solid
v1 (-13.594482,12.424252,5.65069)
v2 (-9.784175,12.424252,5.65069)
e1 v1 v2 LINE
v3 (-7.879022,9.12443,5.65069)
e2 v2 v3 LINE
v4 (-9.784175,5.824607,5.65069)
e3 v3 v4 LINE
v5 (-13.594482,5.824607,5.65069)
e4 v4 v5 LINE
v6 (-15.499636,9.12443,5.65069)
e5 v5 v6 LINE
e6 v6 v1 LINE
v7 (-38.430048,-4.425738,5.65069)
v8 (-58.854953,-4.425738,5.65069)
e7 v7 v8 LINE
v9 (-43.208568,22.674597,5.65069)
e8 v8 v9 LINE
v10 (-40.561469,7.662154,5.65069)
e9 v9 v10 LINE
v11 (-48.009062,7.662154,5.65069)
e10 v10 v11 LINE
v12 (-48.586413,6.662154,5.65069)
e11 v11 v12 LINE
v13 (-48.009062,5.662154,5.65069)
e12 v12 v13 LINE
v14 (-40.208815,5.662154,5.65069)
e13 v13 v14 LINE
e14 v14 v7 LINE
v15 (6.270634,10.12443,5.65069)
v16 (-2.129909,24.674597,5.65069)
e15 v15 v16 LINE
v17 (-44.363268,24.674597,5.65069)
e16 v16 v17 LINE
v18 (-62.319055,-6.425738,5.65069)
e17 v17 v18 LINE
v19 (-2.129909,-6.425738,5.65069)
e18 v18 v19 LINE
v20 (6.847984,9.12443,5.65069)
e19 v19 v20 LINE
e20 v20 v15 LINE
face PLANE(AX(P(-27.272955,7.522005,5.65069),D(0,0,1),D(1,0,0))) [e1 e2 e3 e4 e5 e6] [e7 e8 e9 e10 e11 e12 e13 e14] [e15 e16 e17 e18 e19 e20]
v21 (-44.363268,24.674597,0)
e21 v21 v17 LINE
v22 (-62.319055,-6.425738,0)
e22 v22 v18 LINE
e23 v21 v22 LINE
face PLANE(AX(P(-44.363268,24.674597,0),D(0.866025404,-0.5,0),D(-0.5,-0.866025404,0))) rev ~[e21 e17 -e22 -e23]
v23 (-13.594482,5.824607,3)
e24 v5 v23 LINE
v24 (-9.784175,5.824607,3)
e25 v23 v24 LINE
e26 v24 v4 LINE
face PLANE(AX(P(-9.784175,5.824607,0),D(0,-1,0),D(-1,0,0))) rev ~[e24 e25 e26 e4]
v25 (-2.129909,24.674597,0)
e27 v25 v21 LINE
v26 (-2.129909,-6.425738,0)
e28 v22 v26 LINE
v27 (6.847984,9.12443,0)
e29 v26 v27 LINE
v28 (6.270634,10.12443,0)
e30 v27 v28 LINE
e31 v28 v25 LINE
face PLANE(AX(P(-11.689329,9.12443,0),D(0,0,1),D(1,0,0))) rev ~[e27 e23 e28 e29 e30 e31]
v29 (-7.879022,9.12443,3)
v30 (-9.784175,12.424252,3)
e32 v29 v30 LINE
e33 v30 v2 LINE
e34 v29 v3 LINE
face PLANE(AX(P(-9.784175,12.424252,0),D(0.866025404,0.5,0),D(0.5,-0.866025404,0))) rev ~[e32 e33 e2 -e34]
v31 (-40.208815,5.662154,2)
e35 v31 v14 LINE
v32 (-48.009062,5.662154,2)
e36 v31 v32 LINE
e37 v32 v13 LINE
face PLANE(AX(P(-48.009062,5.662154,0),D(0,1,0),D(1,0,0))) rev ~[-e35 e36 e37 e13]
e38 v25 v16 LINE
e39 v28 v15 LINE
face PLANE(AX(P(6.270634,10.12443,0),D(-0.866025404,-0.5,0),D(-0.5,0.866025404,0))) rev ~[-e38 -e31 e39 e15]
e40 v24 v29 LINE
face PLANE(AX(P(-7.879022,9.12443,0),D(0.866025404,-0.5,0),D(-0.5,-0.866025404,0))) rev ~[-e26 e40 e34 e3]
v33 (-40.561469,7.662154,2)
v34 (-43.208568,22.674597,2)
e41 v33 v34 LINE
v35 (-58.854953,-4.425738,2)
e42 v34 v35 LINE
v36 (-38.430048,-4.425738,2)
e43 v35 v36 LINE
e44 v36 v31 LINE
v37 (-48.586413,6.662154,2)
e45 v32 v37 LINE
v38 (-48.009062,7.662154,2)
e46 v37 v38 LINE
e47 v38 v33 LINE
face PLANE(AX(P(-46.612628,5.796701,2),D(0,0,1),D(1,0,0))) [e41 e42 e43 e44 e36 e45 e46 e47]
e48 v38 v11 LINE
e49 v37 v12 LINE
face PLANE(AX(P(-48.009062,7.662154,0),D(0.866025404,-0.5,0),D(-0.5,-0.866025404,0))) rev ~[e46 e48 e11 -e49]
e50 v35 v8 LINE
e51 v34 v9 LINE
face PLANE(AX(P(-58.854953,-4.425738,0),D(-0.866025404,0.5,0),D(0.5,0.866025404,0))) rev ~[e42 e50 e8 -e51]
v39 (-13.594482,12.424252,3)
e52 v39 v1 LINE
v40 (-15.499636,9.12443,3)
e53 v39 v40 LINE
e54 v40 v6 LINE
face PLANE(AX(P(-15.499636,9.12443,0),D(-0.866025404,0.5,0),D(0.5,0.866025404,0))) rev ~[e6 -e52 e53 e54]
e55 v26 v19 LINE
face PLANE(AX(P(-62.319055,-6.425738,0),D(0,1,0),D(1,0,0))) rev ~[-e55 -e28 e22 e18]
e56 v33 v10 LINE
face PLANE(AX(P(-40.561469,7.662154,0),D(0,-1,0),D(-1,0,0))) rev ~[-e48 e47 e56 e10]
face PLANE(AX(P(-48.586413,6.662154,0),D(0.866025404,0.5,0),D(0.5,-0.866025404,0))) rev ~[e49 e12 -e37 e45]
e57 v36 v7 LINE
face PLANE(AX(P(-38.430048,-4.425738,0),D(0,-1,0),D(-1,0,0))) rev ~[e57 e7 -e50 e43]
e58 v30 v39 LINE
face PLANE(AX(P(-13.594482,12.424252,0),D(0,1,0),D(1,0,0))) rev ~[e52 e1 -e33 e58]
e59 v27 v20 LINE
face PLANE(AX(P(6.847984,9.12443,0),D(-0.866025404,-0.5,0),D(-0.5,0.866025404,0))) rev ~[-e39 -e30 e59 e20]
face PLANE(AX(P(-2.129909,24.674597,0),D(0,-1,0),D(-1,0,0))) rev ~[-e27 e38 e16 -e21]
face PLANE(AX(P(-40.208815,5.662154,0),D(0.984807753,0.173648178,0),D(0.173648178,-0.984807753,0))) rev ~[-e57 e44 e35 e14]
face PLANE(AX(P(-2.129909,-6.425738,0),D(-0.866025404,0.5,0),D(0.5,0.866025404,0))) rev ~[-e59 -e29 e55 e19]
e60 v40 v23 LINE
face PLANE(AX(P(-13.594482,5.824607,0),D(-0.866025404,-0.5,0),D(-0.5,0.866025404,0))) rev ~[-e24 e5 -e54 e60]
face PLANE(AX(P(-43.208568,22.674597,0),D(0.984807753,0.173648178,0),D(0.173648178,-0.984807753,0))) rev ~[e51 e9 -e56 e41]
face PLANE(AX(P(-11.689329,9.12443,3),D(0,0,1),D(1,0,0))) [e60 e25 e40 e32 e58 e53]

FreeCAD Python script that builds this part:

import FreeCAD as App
import Part
import Sketcher
from FreeCAD import Vector
Q = App.Units.Quantity

doc = App.newDocument("Part")
params = doc.addObject("Spreadsheet::Sheet", "Params")
for row, (alias, value) in enumerate([
    ("pad1_length", "2 mm"),
    ("pad2_length", "2 mm"),
    ("pad3_length", "5.65069 mm"),
    ("pad4_length", "3 mm"),
], start=1):
    params.set(f"A{row}", alias)
    params.set(f"B{row}", "=" + value)
    params.setAlias(f"B{row}", alias)

body = doc.addObject("PartDesign::Body", "Body")

# Sketch on XY plane
sketch1 = body.newObject("Sketcher::SketchObject", "Sketch")
sketch1.AttachmentSupport = (doc.getObject("XY_Plane"), [""])
sketch1.MapMode = "FlatFace"
sketch1.addGeometry(Part.LineSegment(Vector(-43.2, 22.7, 0), Vector(-58.9, -4.4, 0)), False)
sketch1.addGeometry(Part.LineSegment(Vector(-58.9, -4.4, 0), Vector(-38.4, -4.4, 0)), False)
sketch1.addGeometry(Part.LineSegment(Vector(-38.4, -4.4, 0), Vector(-40.2, 5.7, 0)), False)
sketch1.addGeometry(Part.LineSegment(Vector(-40.2, 5.7, 0), Vector(-48, 5.7, 0)), False)
sketch1.addGeometry(Part.LineSegment(Vector(-48, 5.7, 0), Vector(-48.6, 6.7, 0)), False)
sketch1.addGeometry(Part.LineSegment(Vector(-48.6, 6.7, 0), Vector(-48, 7.7, 0)), False)
sketch1.addGeometry(Part.LineSegment(Vector(-48, 7.7, 0), Vector(-40.6, 7.7, 0)), False)
sketch1.addGeometry(Part.LineSegment(Vector(-40.6, 7.7, 0), Vector(-43.2, 22.7, 0)), False)
sketch1.addConstraint(Sketcher.Constraint("Coincident", 0, 2, 1, 1))
sketch1.addConstraint(Sketcher.Constraint("Coincident", 1, 2, 2, 1))
sketch1.addConstraint(Sketcher.Constraint("Coincident", 2, 2, 3, 1))
sketch1.addConstraint(Sketcher.Constraint("Coincident", 3, 2, 4, 1))
sketch1.addConstraint(Sketcher.Constraint("Coincident", 4, 2, 5, 1))
sketch1.addConstraint(Sketcher.Constraint("Coincident", 5, 2, 6, 1))
sketch1.addConstraint(Sketcher.Constraint("Coincident", 6, 2, 7, 1))
sketch1.addConstraint(Sketcher.Constraint("Coincident", 7, 2, 0, 1))
sketch1.addConstraint(Sketcher.Constraint("Horizontal", 1))
sketch1.addConstraint(Sketcher.Constraint("Horizontal", 3))
sketch1.addConstraint(Sketcher.Constraint("Horizontal", 6))
sketch1.addConstraint(Sketcher.Constraint("Parallel", 0, 5))
sketch1.addConstraint(Sketcher.Constraint("Parallel", 2, 7))
sketch1.addConstraint(Sketcher.Constraint("Vertical", 3, 2, 5, 2))
sketch1.addConstraint(Sketcher.Constraint("Equal", 4, 5))
sketch1.addConstraint(Sketcher.Constraint("Angle", 0, Q("-120 deg")))
sketch1.addConstraint(Sketcher.Constraint("Angle", 2, Q("100 deg")))
sketch1.addConstraint(Sketcher.Constraint("DistanceY", 3, 2, 4, 2, 1.0))
sketch1.addConstraint(Sketcher.Constraint("DistanceX", 7, 2, 6, 2, 2.647099))
sketch1.addConstraint(Sketcher.Constraint("Distance", 0, 31.292771))
sketch1.addConstraint(Sketcher.Constraint("DistanceX", 1, 1, 1, 2, 20.424906))
sketch1.addConstraint(Sketcher.Constraint("DistanceX", 3, 2, 3, 1, 7.800247))
sketch1.addConstraint(Sketcher.Constraint("DistanceX", 6, 2, -1, 1, 40.561469))
sketch1.addConstraint(Sketcher.Constraint("DistanceY", 0, 2, -1, 1, 4.425738))
pad1 = body.newObject("PartDesign::Pad", "Pad")
pad1.Profile = sketch1
pad1.setExpression("Length", "Params.pad1_length")
body2 = doc.addObject("PartDesign::Body", "Body001")

# Sketch on XY plane
sketch2 = body2.newObject("Sketcher::SketchObject", "Sketch001")
sketch2.AttachmentSupport = (doc.getObject("XY_Plane001"), [""])
sketch2.MapMode = "FlatFace"
sketch2.addGeometry(Part.LineSegment(Vector(-41.2, 22.7, 0), Vector(-36.4, -4.4, 0)), False)
sketch2.addGeometry(Part.LineSegment(Vector(-36.4, -4.4, 0), Vector(-23.2, -4.4, 0)), False)
sketch2.addGeometry(Part.LineSegment(Vector(-23.2, -4.4, 0), Vector(-25.5, 8.9, 0)), False)
sketch2.addGeometry(Part.LineSegment(Vector(-25.5, 8.9, 0), Vector(-33.5, 8.9, 0)), False)
sketch2.addGeometry(Part.LineSegment(Vector(-33.5, 8.9, 0), Vector(-34.1, 9.9, 0)), False)
sketch2.addGeometry(Part.LineSegment(Vector(-34.1, 9.9, 0), Vector(-33.5, 10.9, 0)), False)
sketch2.addGeometry(Part.LineSegment(Vector(-33.5, 10.9, 0), Vector(-22.8, 10.9, 0)), False)
sketch2.addGeometry(Part.LineSegment(Vector(-22.8, 10.9, 0), Vector(-20.1, -4.4, 0)), False)
sketch2.addGeometry(Part.LineSegment(Vector(-20.1, -4.4, 0), Vector(-3.3, -4.4, 0)), False)
sketch2.addGeometry(Part.LineSegment(Vector(-3.3, -4.4, 0), Vector(4.5, 9.1, 0)), False)
sketch2.addGeometry(Part.LineSegment(Vector(4.5, 9.1, 0), Vector(-3.3, 22.7, 0)), False)
sketch2.addGeometry(Part.LineSegment(Vector(-3.3, 22.7, 0), Vector(-20.1, 22.7, 0)), False)
sketch2.addGeometry(Part.LineSegment(Vector(-20.1, 22.7, 0), Vector(-24.5, 15.1, 0)), False)
sketch2.addGeometry(Part.LineSegment(Vector(-24.5, 15.1, 0), Vector(-25.6, 14.8, 0)), False)
sketch2.addGeometry(Part.LineSegment(Vector(-25.6, 14.8, 0), Vector(-33.3, 22.7, 0)), False)
sketch2.addGeometry(Part.LineSegment(Vector(-33.3, 22.7, 0), Vector(-41.2, 22.7, 0)), False)
sketch2.addGeometry(Part.LineSegment(Vector(-13.6, 5.8, 0), Vector(-15.5, 9.1, 0)), False)
sketch2.addGeometry(Part.LineSegment(Vector(-15.5, 9.1, 0), Vector(-13.6, 12.4, 0)), False)
sketch2.addGeometry(Part.LineSegment(Vector(-13.6, 12.4, 0), Vector(-9.8, 12.4, 0)), False)
sketch2.addGeometry(Part.LineSegment(Vector(-9.8, 12.4, 0), Vector(-7.9, 9.1, 0)), False)
sketch2.addGeometry(Part.LineSegment(Vector(-7.9, 9.1, 0), Vector(-9.8, 5.8, 0)), False)
sketch2.addGeometry(Part.LineSegment(Vector(-9.8, 5.8, 0), Vector(-13.6, 5.8, 0)), False)
sketch2.addConstraint(Sketcher.Constraint("Coincident", 0, 2, 1, 1))
sketch2.addConstraint(Sketcher.Constraint("Coincident", 1, 2, 2, 1))
sketch2.addConstraint(Sketcher.Constraint("Coincident", 2, 2, 3, 1))
sketch2.addConstraint(Sketcher.Constraint("Coincident", 3, 2, 4, 1))
sketch2.addConstraint(Sketcher.Constraint("Coincident", 4, 2, 5, 1))
sketch2.addConstraint(Sketcher.Constraint("Coincident", 5, 2, 6, 1))
sketch2.addConstraint(Sketcher.Constraint("Coincident", 6, 2, 7, 1))
sketch2.addConstraint(Sketcher.Constraint("Coincident", 7, 2, 8, 1))
sketch2.addConstraint(Sketcher.Constraint("Coincident", 8, 2, 9, 1))
sketch2.addConstraint(Sketcher.Constraint("Coincident", 9, 2, 10, 1))
sketch2.addConstraint(Sketcher.Constraint("Coincident", 10, 2, 11, 1))
sketch2.addConstraint(Sketcher.Constraint("Coincident", 11, 2, 12, 1))
sketch2.addConstraint(Sketcher.Constraint("Coincident", 12, 2, 13, 1))
sketch2.addConstraint(Sketcher.Constraint("Coincident", 13, 2, 14, 1))
sketch2.addConstraint(Sketcher.Constraint("Coincident", 14, 2, 15, 1))
sketch2.addConstraint(Sketcher.Constraint("Coincident", 15, 2, 0, 1))
sketch2.addConstraint(Sketcher.Constraint("Coincident", 16, 2, 17, 1))
sketch2.addConstraint(Sketcher.Constraint("Coincident", 17, 2, 18, 1))
sketch2.addConstraint(Sketcher.Constraint("Coincident", 18, 2, 19, 1))
sketch2.addConstraint(Sketcher.Constraint("Coincident", 19, 2, 20, 1))
sketch2.addConstraint(Sketcher.Constraint("Coincident", 20, 2, 21, 1))
sketch2.addConstraint(Sketcher.Constraint("Coincident", 21, 2, 16, 1))
sketch2.addConstraint(Sketcher.Constraint("Horizontal", 1))
sketch2.addConstraint(Sketcher.Constraint("Horizontal", 3))
sketch2.addConstraint(Sketcher.Constraint("Horizontal", 6))
sketch2.addConstraint(Sketcher.Constraint("Horizontal", 8))
sketch2.addConstraint(Sketcher.Constraint("Horizontal", 11))
sketch2.addConstraint(Sketcher.Constraint("Horizontal", 15))
sketch2.addConstraint(Sketcher.Constraint("Horizontal", 18))
sketch2.addConstraint(Sketcher.Constraint("Horizontal", 21))
sketch2.addConstraint(Sketcher.Constraint("Parallel", 0, 2))
sketch2.addConstraint(Sketcher.Constraint("Parallel", 2, 7))
sketch2.addConstraint(Sketcher.Constraint("Parallel", 5, 9))
sketch2.addConstraint(Sketcher.Constraint("Parallel", 4, 10))
sketch2.addConstraint(Sketcher.Constraint("Parallel", 9, 12))
sketch2.addConstraint(Sketcher.Constraint("Parallel", 10, 16))
sketch2.addConstraint(Sketcher.Constraint("Parallel", 12, 17))
sketch2.addConstraint(Sketcher.Constraint("Parallel", 16, 19))
sketch2.addConstraint(Sketcher.Constraint("Parallel", 17, 20))
sketch2.addConstraint(Sketcher.Constraint("Horizontal", 1, 2, 7, 2))
sketch2.addConstraint(Sketcher.Constraint("Horizontal", 11, 2, 14, 2))
sketch2.addConstraint(Sketcher.Constraint("Horizontal", 9, 2, 16, 2))
sketch2.addConstraint(Sketcher.Constraint("Horizontal", 16, 2, 19, 2))
sketch2.addConstraint(Sketcher.Constraint("Vertical", 3, 2, 5, 2))
sketch2.addConstraint(Sketcher.Constraint("Vertical", 8, 2, 10, 2))
sketch2.addConstraint(Sketcher.Constraint("Vertical", 7, 2, 11, 2))
sketch2.addConstraint(Sketcher.Constraint("Vertical", 18, 2, 20, 2))
sketch2.addConstraint(Sketcher.Constraint("Vertical", 17, 2, 21, 2))
sketch2.addConstraint(Sketcher.Constraint("Angle", 0, Q("-80 deg")))
sketch2.addConstraint(Sketcher.Constraint("Angle", 4, Q("120 deg")))
sketch2.addConstraint(Sketcher.Constraint("DistanceY", 3, 2, 4, 2, 1.0))
sketch2.addConstraint(Sketcher.Constraint("DistanceX", 1, 2, -1, 1, 23.177001))
sketch2.addConstraint(Sketcher.Constraint("DistanceX", 0, 2, 7, 2, 16.335999))
sketch2.addConstraint(Sketcher.Constraint("Distance", 0, 27.518401))
sketch2.addConstraint(Sketcher.Constraint("DistanceX", 3, 2, 3, 1, 7.96587))
sketch2.addConstraint(Sketcher.Constraint("DistanceX", 6, 1, 6, 2, 10.696169))
sketch2.addConstraint(Sketcher.Constraint("DistanceX", 8, 1, 8, 2, 16.809439))
sketch2.addConstraint(Sketcher.Constraint("DistanceX", 0, 2, 2, 2, 10.906101))
sketch2.addConstraint(Sketcher.Constraint("DistanceY", 12, 2, 11, 2, 7.595101))
sketch2.addConstraint(Sketcher.Constraint("DistanceY", 6, 2, 13, 2, 3.9092))
sketch2.addConstraint(Sketcher.Constraint("DistanceY", 6, 2, 17, 2, 1.5398))
sketch2.addConstraint(Sketcher.Constraint("DistanceX", 12, 2, 17, 2, 10.884599))
sketch2.addConstraint(Sketcher.Constraint("Distance", 13, 1.159121))
sketch2.addConstraint(Sketcher.Constraint("DistanceX", 15, 2, 15, 1, 7.921724))
sketch2.addConstraint(Sketcher.Constraint("DistanceX", 18, 1, 18, 2, 3.810307))
sketch2.addConstraint(Sketcher.Constraint("DistanceY", -1, 1, 2, 2, 8.884452))
pad2 = body2.newObject("PartDesign::Pad", "Pad001")
pad2.Profile = sketch2
pad2.setExpression("Length", "Params.pad2_length")
body.AllowCompound = True
doc.recompute()

boolean = body.newObject("PartDesign::Boolean", "Boolean")
boolean.Type = "Fuse"
boolean.addObjects([body2])

# Sketch on XY plane
sketch3 = body.newObject("Sketcher::SketchObject", "Sketch002")
sketch3.AttachmentSupport = (doc.getObject("XY_Plane"), [""])
sketch3.MapMode = "FlatFace"
sketch3.addGeometry(Part.LineSegment(Vector(-44.4, 24.7, 0), Vector(-62.3, -6.4, 0)), False)
sketch3.addGeometry(Part.LineSegment(Vector(-62.3, -6.4, 0), Vector(-2.1, -6.4, 0)), False)
sketch3.addGeometry(Part.LineSegment(Vector(-2.1, -6.4, 0), Vector(6.8, 9.1, 0)), False)
sketch3.addGeometry(Part.LineSegment(Vector(6.8, 9.1, 0), Vector(6.3, 10.1, 0)), False)
sketch3.addGeometry(Part.LineSegment(Vector(6.3, 10.1, 0), Vector(-2.1, 24.7, 0)), False)
sketch3.addGeometry(Part.LineSegment(Vector(-2.1, 24.7, 0), Vector(-44.4, 24.7, 0)), False)
sketch3.addGeometry(Part.LineSegment(Vector(-38.4, -4.4, 0), Vector(-58.9, -4.4, 0)), False)
sketch3.addGeometry(Part.LineSegment(Vector(-58.9, -4.4, 0), Vector(-43.2, 22.7, 0)), False)
sketch3.addGeometry(Part.LineSegment(Vector(-43.2, 22.7, 0), Vector(-40.6, 7.7, 0)), False)
sketch3.addGeometry(Part.LineSegment(Vector(-40.6, 7.7, 0), Vector(-48, 7.7, 0)), False)
sketch3.addGeometry(Part.LineSegment(Vector(-48, 7.7, 0), Vector(-48.6, 6.7, 0)), False)
sketch3.addGeometry(Part.LineSegment(Vector(-48.6, 6.7, 0), Vector(-48, 5.7, 0)), False)
sketch3.addGeometry(Part.LineSegment(Vector(-48, 5.7, 0), Vector(-40.2, 5.7, 0)), False)
sketch3.addGeometry(Part.LineSegment(Vector(-40.2, 5.7, 0), Vector(-38.4, -4.4, 0)), False)
sketch3.addGeometry(Part.LineSegment(Vector(-13.6, 5.8, 0), Vector(-15.5, 9.1, 0)), False)
sketch3.addGeometry(Part.LineSegment(Vector(-15.5, 9.1, 0), Vector(-13.6, 12.4, 0)), False)
sketch3.addGeometry(Part.LineSegment(Vector(-13.6, 12.4, 0), Vector(-9.8, 12.4, 0)), False)
sketch3.addGeometry(Part.LineSegment(Vector(-9.8, 12.4, 0), Vector(-7.9, 9.1, 0)), False)
sketch3.addGeometry(Part.LineSegment(Vector(-7.9, 9.1, 0), Vector(-9.8, 5.8, 0)), False)
sketch3.addGeometry(Part.LineSegment(Vector(-9.8, 5.8, 0), Vector(-13.6, 5.8, 0)), False)
sketch3.addConstraint(Sketcher.Constraint("Coincident", 0, 2, 1, 1))
sketch3.addConstraint(Sketcher.Constraint("Coincident", 1, 2, 2, 1))
sketch3.addConstraint(Sketcher.Constraint("Coincident", 2, 2, 3, 1))
sketch3.addConstraint(Sketcher.Constraint("Coincident", 3, 2, 4, 1))
sketch3.addConstraint(Sketcher.Constraint("Coincident", 4, 2, 5, 1))
sketch3.addConstraint(Sketcher.Constraint("Coincident", 5, 2, 0, 1))
sketch3.addConstraint(Sketcher.Constraint("Coincident", 6, 2, 7, 1))
sketch3.addConstraint(Sketcher.Constraint("Coincident", 7, 2, 8, 1))
sketch3.addConstraint(Sketcher.Constraint("Coincident", 8, 2, 9, 1))
sketch3.addConstraint(Sketcher.Constraint("Coincident", 9, 2, 10, 1))
sketch3.addConstraint(Sketcher.Constraint("Coincident", 10, 2, 11, 1))
sketch3.addConstraint(Sketcher.Constraint("Coincident", 11, 2, 12, 1))
sketch3.addConstraint(Sketcher.Constraint("Coincident", 12, 2, 13, 1))
sketch3.addConstraint(Sketcher.Constraint("Coincident", 13, 2, 6, 1))
sketch3.addConstraint(Sketcher.Constraint("Coincident", 14, 2, 15, 1))
sketch3.addConstraint(Sketcher.Constraint("Coincident", 15, 2, 16, 1))
sketch3.addConstraint(Sketcher.Constraint("Coincident", 16, 2, 17, 1))
sketch3.addConstraint(Sketcher.Constraint("Coincident", 17, 2, 18, 1))
sketch3.addConstraint(Sketcher.Constraint("Coincident", 18, 2, 19, 1))
sketch3.addConstraint(Sketcher.Constraint("Coincident", 19, 2, 14, 1))
sketch3.addConstraint(Sketcher.Constraint("Horizontal", 1))
sketch3.addConstraint(Sketcher.Constraint("Horizontal", 5))
sketch3.addConstraint(Sketcher.Constraint("Horizontal", 6))
sketch3.addConstraint(Sketcher.Constraint("Horizontal", 9))
sketch3.addConstraint(Sketcher.Constraint("Horizontal", 12))
sketch3.addConstraint(Sketcher.Constraint("Horizontal", 16))
sketch3.addConstraint(Sketcher.Constraint("Horizontal", 19))
sketch3.addConstraint(Sketcher.Constraint("Parallel", 0, 2))
sketch3.addConstraint(Sketcher.Constraint("Parallel", 3, 4))
sketch3.addConstraint(Sketcher.Constraint("Parallel", 2, 7))
sketch3.addConstraint(Sketcher.Constraint("Parallel", 7, 10))
sketch3.addConstraint(Sketcher.Constraint("Parallel", 4, 11))
sketch3.addConstraint(Sketcher.Constraint("Parallel", 8, 13))
sketch3.addConstraint(Sketcher.Constraint("Parallel", 11, 14))
sketch3.addConstraint(Sketcher.Constraint("Parallel", 10, 15))
sketch3.addConstraint(Sketcher.Constraint("Parallel", 14, 17))
sketch3.addConstraint(Sketcher.Constraint("Parallel", 15, 18))
sketch3.addConstraint(Sketcher.Constraint("Horizontal", 2, 2, 14, 2))
sketch3.addConstraint(Sketcher.Constraint("Horizontal", 14, 2, 17, 2))
sketch3.addConstraint(Sketcher.Constraint("Vertical", 1, 2, 4, 2))
sketch3.addConstraint(Sketcher.Constraint("Vertical", 9, 2, 11, 2))
sketch3.addConstraint(Sketcher.Constraint("Vertical", 16, 2, 18, 2))
sketch3.addConstraint(Sketcher.Constraint("Vertical", 15, 2, 19, 2))
sketch3.addConstraint(Sketcher.Constraint("Equal", 3, 10))
sketch3.addConstraint(Sketcher.Constraint("Angle", 0, Q("-120 deg")))
sketch3.addConstraint(Sketcher.Constraint("Angle", 8, Q("-80 deg")))
sketch3.addConstraint(Sketcher.Constraint("DistanceY", 2, 2, 3, 2, 1.0))
sketch3.addConstraint(Sketcher.Constraint("DistanceY", 0, 2, 6, 2, 2.0))
sketch3.addConstraint(Sketcher.Constraint("DistanceY", 7, 2, 5, 2, 2.0))
sketch3.addConstraint(Sketcher.Constraint("DistanceX", 5, 2, 5, 1, 42.233359))
sketch3.addConstraint(Sketcher.Constraint("DistanceX", 0, 2, 6, 2, 3.464102))
sketch3.addConstraint(Sketcher.Constraint("DistanceX", 7, 2, 8, 2, 2.647099))
sketch3.addConstraint(Sketcher.Constraint("Distance", 7, 31.292771))
sketch3.addConstraint(Sketcher.Constraint("DistanceX", 6, 2, 6, 1, 20.424906))
sketch3.addConstraint(Sketcher.Constraint("DistanceX", 9, 2, 9, 1, 7.447593))
sketch3.addConstraint(Sketcher.Constraint("DistanceX", 16, 1, 16, 2, 3.810307))
sketch3.addConstraint(Sketcher.Constraint("DistanceX", 1, 2, -1, 1, 2.129909))
sketch3.addConstraint(Sketcher.Constraint("DistanceY", -1, 1, 2, 2, 9.12443))
sketch3.addConstraint(Sketcher.Constraint("DistanceY", -1, 1, 15, 2, 12.424252))
sketch3.addConstraint(Sketcher.Constraint("DistanceX", 14, 2, 3, 2, 21.77027))
pad3 = body.newObject("PartDesign::Pad", "Pad002")
pad3.Profile = sketch3
pad3.setExpression("Length", "Params.pad3_length")

# Sketch on XY plane
sketch4 = body.newObject("Sketcher::SketchObject", "Sketch003")
sketch4.AttachmentSupport = (doc.getObject("XY_Plane"), [""])
sketch4.MapMode = "FlatFace"
sketch4.addGeometry(Part.LineSegment(Vector(-9.8, 12.4, 0), Vector(-13.6, 12.4, 0)), False)
sketch4.addGeometry(Part.LineSegment(Vector(-13.6, 12.4, 0), Vector(-15.5, 9.1, 0)), False)
sketch4.addGeometry(Part.LineSegment(Vector(-15.5, 9.1, 0), Vector(-13.6, 5.8, 0)), False)
sketch4.addGeometry(Part.LineSegment(Vector(-13.6, 5.8, 0), Vector(-9.8, 5.8, 0)), False)
sketch4.addGeometry(Part.LineSegment(Vector(-9.8, 5.8, 0), Vector(-7.9, 9.1, 0)), False)
sketch4.addGeometry(Part.LineSegment(Vector(-7.9, 9.1, 0), Vector(-9.8, 12.4, 0)), False)
sketch4.addConstraint(Sketcher.Constraint("Coincident", 0, 2, 1, 1))
sketch4.addConstraint(Sketcher.Constraint("Coincident", 1, 2, 2, 1))
sketch4.addConstraint(Sketcher.Constraint("Coincident", 2, 2, 3, 1))
sketch4.addConstraint(Sketcher.Constraint("Coincident", 3, 2, 4, 1))
sketch4.addConstraint(Sketcher.Constraint("Coincident", 4, 2, 5, 1))
sketch4.addConstraint(Sketcher.Constraint("Coincident", 5, 2, 0, 1))
sketch4.addConstraint(Sketcher.Constraint("Horizontal", 0))
sketch4.addConstraint(Sketcher.Constraint("Horizontal", 3))
sketch4.addConstraint(Sketcher.Constraint("Parallel", 1, 4))
sketch4.addConstraint(Sketcher.Constraint("Parallel", 2, 5))
sketch4.addConstraint(Sketcher.Constraint("Horizontal", 1, 2, 4, 2))
sketch4.addConstraint(Sketcher.Constraint("Vertical", 0, 2, 2, 2))
sketch4.addConstraint(Sketcher.Constraint("Vertical", 3, 2, 5, 2))
sketch4.addConstraint(Sketcher.Constraint("Angle", 1, Q("-120 deg")))
sketch4.addConstraint(Sketcher.Constraint("DistanceX", 0, 2, 0, 1, 3.810307))
sketch4.addConstraint(Sketcher.Constraint("DistanceY", -1, 1, 0, 2, 12.424252))
sketch4.addConstraint(Sketcher.Constraint("DistanceY", -1, 1, 1, 2, 9.12443))
sketch4.addConstraint(Sketcher.Constraint("DistanceX", 0, 2, -1, 1, 13.594482))
pad4 = body.newObject("PartDesign::Pad", "Pad003")
pad4.Profile = sketch4
pad4.setExpression("Length", "Params.pad4_length")

doc.recompute()
